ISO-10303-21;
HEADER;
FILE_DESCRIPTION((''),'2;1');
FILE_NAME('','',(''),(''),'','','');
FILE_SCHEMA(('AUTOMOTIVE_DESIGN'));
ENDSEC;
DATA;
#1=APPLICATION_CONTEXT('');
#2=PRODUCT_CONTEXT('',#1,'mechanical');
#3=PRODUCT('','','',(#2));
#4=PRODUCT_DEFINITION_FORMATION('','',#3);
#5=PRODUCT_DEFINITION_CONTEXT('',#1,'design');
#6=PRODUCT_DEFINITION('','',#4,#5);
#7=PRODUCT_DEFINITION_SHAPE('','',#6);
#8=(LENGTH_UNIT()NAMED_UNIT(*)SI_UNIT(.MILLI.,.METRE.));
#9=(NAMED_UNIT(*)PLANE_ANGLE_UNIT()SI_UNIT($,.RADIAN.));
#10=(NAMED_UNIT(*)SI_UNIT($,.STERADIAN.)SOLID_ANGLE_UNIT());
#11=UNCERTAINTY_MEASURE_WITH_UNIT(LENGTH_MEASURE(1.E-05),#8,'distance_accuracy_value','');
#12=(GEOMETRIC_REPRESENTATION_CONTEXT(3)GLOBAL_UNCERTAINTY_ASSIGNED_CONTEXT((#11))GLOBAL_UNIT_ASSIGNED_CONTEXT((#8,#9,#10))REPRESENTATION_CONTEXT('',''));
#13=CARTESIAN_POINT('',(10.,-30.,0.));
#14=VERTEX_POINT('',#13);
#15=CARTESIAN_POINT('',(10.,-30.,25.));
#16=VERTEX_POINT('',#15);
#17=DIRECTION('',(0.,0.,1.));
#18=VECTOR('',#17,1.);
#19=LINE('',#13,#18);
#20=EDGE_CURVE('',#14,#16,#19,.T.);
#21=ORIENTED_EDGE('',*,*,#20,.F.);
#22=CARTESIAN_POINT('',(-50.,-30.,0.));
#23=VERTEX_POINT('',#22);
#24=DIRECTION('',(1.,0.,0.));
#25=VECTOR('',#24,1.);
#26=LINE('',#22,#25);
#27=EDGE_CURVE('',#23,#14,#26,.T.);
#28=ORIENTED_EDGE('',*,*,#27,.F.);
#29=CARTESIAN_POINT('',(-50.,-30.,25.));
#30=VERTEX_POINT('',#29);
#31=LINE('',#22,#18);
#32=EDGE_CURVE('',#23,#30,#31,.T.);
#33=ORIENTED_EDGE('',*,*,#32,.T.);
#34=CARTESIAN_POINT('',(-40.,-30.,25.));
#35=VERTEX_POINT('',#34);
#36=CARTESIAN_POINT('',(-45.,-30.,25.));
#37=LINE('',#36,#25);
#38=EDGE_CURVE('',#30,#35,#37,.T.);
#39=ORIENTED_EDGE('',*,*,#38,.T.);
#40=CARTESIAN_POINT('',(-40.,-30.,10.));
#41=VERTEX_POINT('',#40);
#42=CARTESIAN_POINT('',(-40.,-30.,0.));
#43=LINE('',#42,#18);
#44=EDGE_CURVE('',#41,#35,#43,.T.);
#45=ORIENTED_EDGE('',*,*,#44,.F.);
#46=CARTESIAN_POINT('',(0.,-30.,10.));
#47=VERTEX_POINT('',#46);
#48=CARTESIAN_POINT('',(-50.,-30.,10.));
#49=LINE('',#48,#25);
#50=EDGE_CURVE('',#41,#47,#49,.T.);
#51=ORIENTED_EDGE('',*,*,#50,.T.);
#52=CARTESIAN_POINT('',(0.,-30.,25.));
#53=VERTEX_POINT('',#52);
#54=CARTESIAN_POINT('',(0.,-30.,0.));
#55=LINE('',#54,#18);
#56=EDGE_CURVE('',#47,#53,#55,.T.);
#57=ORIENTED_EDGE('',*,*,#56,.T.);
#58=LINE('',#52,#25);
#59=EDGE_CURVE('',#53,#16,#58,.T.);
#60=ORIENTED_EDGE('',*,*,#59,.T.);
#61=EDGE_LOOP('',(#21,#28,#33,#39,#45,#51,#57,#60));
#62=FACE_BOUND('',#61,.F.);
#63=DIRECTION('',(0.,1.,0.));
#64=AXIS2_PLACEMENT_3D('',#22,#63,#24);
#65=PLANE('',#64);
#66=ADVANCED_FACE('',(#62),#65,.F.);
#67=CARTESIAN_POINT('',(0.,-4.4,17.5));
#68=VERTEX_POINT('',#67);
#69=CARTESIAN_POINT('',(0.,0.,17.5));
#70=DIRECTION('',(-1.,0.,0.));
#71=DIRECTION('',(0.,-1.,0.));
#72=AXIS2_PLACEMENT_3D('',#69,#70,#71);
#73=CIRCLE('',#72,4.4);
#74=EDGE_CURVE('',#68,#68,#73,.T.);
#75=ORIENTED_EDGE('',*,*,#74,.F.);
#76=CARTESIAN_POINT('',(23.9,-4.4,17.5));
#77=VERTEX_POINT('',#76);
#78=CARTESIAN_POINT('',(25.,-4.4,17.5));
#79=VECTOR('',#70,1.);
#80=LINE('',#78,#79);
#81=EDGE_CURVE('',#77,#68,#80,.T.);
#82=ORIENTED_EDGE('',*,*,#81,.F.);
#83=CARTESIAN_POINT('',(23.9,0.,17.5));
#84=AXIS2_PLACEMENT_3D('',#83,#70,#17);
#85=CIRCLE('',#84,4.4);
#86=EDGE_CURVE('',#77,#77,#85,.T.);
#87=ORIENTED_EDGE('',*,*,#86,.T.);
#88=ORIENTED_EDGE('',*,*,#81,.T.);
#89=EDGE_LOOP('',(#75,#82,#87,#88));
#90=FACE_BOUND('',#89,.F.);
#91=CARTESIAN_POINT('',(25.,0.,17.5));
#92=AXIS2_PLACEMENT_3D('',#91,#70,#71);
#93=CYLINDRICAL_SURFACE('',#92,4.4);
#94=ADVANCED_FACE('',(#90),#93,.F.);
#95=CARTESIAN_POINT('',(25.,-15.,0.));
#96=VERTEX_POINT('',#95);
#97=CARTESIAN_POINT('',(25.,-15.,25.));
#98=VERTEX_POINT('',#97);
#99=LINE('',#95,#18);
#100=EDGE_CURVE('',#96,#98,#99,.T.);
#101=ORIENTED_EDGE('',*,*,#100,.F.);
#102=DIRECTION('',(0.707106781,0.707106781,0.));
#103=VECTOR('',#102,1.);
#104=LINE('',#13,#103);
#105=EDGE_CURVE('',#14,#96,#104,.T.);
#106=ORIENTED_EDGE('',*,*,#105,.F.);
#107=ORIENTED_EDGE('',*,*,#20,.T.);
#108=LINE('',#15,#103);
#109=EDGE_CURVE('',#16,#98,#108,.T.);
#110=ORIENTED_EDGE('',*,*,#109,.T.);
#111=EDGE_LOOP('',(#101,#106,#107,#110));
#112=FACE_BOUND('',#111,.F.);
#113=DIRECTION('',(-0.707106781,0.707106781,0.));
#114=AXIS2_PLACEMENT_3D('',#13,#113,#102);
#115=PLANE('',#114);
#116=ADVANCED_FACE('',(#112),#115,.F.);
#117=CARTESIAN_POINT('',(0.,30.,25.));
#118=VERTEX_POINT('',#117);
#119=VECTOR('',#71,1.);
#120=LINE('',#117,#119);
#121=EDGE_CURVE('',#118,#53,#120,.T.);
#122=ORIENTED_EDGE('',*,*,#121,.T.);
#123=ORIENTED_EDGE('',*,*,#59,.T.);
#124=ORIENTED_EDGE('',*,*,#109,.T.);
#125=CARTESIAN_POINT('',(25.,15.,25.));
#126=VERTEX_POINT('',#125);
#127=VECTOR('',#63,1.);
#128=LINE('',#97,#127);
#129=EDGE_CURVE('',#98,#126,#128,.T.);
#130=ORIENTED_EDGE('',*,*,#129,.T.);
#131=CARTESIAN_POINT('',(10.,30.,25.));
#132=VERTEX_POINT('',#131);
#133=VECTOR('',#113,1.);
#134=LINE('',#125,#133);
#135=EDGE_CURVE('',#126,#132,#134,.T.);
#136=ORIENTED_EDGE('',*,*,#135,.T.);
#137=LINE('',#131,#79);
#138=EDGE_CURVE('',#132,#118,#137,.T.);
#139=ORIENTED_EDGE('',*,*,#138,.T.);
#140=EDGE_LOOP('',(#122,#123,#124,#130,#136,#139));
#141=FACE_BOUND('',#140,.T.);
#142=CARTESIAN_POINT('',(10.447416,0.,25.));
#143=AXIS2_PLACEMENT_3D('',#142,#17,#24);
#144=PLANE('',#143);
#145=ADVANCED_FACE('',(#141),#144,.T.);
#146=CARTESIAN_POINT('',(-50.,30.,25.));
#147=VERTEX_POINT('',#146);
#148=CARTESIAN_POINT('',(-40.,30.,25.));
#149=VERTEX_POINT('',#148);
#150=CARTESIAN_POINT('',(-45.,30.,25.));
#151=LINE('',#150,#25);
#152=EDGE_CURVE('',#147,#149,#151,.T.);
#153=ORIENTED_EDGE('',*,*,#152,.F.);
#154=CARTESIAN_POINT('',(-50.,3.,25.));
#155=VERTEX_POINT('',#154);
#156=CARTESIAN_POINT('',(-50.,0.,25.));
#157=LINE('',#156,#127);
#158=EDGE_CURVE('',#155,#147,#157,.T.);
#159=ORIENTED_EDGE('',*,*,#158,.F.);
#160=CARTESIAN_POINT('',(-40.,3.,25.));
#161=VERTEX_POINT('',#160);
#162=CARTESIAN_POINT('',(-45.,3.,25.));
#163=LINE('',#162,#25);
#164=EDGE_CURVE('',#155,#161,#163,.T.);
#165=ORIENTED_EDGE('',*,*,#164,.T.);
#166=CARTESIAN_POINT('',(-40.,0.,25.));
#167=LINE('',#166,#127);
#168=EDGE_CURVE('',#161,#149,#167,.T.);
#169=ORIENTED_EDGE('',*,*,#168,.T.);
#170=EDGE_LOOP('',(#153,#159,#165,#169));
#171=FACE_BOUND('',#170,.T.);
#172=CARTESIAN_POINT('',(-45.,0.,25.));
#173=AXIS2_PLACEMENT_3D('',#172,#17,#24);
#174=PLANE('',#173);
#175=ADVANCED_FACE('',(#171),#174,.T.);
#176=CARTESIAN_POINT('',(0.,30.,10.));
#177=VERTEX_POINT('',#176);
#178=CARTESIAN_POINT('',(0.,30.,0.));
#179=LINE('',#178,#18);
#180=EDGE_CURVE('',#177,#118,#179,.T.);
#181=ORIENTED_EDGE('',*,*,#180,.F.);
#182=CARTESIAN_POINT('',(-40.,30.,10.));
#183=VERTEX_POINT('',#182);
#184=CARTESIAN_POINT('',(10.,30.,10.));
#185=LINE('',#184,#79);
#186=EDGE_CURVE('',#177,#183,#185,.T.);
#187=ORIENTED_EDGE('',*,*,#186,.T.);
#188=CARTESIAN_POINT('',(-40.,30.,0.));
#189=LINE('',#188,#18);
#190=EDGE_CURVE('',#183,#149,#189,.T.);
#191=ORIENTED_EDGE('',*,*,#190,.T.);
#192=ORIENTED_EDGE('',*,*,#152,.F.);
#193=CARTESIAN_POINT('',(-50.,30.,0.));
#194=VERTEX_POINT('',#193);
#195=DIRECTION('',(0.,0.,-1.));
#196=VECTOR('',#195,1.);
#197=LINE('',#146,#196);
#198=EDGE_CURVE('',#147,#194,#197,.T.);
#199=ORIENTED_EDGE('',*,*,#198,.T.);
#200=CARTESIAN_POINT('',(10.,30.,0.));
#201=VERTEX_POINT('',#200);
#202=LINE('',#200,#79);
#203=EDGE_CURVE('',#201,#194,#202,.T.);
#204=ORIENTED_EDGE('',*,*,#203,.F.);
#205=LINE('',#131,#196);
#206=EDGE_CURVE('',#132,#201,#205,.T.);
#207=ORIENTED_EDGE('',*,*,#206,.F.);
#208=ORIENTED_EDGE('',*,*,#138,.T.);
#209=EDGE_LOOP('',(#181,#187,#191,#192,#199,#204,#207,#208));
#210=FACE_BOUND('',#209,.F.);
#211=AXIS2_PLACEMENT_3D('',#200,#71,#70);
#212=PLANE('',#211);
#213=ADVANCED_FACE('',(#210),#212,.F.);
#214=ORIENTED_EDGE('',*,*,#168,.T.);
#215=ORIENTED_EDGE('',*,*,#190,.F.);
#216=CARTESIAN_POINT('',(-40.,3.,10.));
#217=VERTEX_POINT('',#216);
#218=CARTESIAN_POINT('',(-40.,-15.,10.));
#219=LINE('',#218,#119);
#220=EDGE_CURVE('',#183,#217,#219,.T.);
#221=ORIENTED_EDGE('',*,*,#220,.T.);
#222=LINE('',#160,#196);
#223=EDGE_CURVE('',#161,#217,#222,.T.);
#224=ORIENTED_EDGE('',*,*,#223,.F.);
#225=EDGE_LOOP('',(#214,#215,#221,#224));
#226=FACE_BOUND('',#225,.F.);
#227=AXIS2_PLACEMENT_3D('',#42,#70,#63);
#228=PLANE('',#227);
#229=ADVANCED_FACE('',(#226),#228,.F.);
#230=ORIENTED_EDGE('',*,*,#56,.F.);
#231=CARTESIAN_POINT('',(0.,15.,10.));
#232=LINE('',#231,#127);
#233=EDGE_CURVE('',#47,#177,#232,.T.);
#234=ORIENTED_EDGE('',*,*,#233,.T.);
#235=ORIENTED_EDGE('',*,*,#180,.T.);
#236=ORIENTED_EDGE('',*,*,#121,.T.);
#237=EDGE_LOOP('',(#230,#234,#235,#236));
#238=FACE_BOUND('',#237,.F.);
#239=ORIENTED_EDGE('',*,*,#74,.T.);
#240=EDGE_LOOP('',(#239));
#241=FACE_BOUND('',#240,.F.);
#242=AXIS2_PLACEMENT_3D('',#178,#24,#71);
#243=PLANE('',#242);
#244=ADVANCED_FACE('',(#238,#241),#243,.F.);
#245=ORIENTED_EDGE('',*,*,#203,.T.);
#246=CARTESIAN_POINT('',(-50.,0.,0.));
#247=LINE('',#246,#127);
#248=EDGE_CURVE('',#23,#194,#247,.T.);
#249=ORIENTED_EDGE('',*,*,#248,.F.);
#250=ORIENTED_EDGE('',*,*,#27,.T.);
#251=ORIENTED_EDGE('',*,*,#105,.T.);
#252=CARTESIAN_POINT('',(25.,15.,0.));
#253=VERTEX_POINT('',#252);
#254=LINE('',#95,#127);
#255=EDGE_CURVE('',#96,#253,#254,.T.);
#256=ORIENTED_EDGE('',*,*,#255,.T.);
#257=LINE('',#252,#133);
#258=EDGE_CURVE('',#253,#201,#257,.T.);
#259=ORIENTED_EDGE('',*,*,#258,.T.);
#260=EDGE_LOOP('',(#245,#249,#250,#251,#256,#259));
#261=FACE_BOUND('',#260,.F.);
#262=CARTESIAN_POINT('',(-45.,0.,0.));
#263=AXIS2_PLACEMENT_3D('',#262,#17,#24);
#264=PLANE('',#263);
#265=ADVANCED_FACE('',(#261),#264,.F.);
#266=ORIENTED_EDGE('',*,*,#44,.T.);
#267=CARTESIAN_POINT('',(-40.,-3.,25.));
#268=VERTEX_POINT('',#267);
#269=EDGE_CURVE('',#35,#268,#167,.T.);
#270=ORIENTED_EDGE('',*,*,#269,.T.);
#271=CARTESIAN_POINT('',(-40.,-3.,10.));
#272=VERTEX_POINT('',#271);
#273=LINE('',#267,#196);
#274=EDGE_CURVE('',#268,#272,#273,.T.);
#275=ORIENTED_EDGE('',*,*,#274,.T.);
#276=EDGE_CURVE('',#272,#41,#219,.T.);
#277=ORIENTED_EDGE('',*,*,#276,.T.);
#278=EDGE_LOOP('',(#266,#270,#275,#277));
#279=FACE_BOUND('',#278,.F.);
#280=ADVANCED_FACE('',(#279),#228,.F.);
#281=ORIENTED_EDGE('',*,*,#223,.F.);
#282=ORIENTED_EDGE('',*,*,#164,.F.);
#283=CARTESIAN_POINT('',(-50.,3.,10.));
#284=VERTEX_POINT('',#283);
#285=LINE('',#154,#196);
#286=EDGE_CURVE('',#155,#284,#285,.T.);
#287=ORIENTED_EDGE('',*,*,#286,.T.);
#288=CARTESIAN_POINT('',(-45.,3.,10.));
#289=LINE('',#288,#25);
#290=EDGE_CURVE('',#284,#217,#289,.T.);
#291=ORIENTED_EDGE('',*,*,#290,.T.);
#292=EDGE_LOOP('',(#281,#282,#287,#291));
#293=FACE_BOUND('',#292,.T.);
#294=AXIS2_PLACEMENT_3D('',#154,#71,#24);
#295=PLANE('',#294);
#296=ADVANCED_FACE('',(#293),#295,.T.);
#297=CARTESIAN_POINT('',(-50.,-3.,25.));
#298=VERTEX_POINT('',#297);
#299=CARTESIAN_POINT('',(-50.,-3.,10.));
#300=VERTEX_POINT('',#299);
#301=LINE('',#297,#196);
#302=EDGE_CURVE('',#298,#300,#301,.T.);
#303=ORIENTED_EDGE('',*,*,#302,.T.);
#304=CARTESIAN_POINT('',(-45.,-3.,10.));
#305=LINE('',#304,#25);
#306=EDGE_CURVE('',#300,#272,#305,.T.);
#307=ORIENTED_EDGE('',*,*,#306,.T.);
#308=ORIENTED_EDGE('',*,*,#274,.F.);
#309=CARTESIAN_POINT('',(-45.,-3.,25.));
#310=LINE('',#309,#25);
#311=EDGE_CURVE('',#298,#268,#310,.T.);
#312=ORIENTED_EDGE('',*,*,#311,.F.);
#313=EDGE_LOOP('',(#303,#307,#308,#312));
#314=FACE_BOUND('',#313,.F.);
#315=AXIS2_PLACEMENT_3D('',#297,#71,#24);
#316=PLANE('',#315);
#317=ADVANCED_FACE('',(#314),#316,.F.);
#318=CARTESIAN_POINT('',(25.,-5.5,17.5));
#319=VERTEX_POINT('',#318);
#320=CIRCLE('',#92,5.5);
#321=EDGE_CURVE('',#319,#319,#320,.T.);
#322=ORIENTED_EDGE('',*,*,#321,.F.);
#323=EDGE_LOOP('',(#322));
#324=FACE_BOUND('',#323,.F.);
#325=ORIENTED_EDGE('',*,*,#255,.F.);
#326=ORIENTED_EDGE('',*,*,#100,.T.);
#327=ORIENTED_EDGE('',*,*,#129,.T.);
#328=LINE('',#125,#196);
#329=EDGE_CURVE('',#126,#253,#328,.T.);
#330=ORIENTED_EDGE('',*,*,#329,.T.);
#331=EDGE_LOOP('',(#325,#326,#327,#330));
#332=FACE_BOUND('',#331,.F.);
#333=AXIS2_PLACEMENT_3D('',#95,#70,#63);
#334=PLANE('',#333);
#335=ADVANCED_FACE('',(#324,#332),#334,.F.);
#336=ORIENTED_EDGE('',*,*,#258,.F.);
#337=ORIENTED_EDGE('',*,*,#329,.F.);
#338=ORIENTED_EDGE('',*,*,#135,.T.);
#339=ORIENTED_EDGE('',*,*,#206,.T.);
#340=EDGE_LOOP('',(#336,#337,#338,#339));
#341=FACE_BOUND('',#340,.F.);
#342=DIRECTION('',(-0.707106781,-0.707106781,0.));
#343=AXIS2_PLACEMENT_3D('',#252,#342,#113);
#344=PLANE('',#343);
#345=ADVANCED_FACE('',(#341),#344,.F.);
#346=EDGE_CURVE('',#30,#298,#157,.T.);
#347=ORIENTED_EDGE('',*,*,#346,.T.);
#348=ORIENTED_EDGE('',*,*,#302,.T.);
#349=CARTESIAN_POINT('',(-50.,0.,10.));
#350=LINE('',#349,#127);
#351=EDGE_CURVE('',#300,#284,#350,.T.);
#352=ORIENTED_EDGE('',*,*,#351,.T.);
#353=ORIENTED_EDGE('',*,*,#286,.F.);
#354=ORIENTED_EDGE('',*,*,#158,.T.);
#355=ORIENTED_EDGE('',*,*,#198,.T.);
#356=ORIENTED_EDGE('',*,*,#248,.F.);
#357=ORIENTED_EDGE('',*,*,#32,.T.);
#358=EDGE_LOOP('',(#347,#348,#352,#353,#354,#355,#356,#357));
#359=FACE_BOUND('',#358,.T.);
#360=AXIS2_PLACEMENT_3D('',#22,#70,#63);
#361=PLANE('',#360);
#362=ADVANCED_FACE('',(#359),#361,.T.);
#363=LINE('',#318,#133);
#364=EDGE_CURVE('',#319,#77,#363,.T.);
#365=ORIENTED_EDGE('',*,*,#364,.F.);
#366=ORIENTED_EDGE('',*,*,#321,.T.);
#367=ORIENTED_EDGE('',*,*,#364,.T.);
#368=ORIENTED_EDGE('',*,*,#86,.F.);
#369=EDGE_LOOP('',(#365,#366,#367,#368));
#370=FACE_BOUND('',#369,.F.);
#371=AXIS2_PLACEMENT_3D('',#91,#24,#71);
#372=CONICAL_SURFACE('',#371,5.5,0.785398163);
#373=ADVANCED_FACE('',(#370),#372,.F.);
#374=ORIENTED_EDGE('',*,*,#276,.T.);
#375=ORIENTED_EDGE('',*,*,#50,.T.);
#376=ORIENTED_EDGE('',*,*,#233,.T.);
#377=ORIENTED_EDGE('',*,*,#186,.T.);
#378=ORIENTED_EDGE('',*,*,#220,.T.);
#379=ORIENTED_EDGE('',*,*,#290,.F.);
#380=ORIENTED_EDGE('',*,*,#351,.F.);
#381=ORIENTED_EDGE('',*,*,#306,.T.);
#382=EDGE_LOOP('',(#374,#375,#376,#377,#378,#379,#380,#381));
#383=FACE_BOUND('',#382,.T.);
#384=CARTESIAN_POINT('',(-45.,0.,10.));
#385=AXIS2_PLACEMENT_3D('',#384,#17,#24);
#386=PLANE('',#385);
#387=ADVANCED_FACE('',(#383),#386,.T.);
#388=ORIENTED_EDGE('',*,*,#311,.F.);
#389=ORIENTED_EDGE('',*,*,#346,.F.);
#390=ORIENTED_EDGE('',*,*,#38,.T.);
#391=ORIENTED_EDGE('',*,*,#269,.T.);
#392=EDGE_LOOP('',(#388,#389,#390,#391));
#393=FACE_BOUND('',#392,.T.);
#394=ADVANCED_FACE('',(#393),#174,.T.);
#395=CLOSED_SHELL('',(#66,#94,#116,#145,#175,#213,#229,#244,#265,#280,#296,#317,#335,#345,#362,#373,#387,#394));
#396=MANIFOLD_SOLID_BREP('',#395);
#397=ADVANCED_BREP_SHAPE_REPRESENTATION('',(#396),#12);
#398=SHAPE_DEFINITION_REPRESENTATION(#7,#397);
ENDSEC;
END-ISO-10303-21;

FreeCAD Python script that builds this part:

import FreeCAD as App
import Part
import Sketcher

V = App.Vector
Q = App.Units.Quantity


def add_polygon(sketch, points):
    """Adds a closed chain of lines whose ends are joined by coincident constraints."""
    first, n = sketch.GeometryCount, len(points)
    for a, b in zip(points, points[1:] + points[:1]):
        sketch.addGeometry(Part.LineSegment(App.Vector(*a, 0), App.Vector(*b, 0)), False)
    for i in range(n):
        sketch.addConstraint(Sketcher.Constraint("Coincident", first + i, 2, first + (i + 1) % n, 1))

doc = App.newDocument("Part")
body = doc.addObject("PartDesign::Body", "Body")

sketch1 = body.newObject("Sketcher::SketchObject", "Sketch")
sketch1.AttachmentSupport = (doc.getObject("XY_Plane"), [""])
sketch1.MapMode = "FlatFace"
add_polygon(sketch1, [(-50, 30), (-50, -30), (10, -30), (25, -15), (25, 15), (10, 30)])
sketch1.addConstraint(Sketcher.Constraint("Vertical", 0))
sketch1.addConstraint(Sketcher.Constraint("Horizontal", 1))
sketch1.addConstraint(Sketcher.Constraint("Vertical", 3))
sketch1.addConstraint(Sketcher.Constraint("Horizontal", 5))
sketch1.addConstraint(Sketcher.Constraint("Symmetric", 1, 2, 4, 2, -1))
sketch1.addConstraint(Sketcher.Constraint("Perpendicular", 2, 4))
sketch1.addConstraint(Sketcher.Constraint("Equal", 5, 0))
sketch1.addConstraint(Sketcher.Constraint("Equal", 2, 4))
sketch1.addConstraint(Sketcher.Constraint("DistanceX", 1, 1, 1, 2, Q("60 mm")))
sketch1.addConstraint(Sketcher.Constraint("DistanceY", 3, 1, 3, 2, Q("30 mm")))
sketch1.addConstraint(Sketcher.Constraint("DistanceX", 0, 2, -1, 1, Q("50 mm")))
pad1 = body.newObject("PartDesign::Pad", "Pad")
pad1.Profile = sketch1
pad1.Length = 10

sketch2 = body.newObject("Sketcher::SketchObject", "Sketch001")
sketch2.AttachmentSupport = (doc.getObject("XY_Plane"), [""])
sketch2.MapMode = "FlatFace"
add_polygon(sketch2, [(-50, 30), (-50, -30), (-40, -30), (-40, 30)])
add_polygon(sketch2, [(10, 30), (0, 30), (0, -30), (10, -30), (25, -15), (25, 15)])
sketch2.addConstraint(Sketcher.Constraint("Vertical", 0))
sketch2.addConstraint(Sketcher.Constraint("Horizontal", 1))
sketch2.addConstraint(Sketcher.Constraint("Vertical", 2))
sketch2.addConstraint(Sketcher.Constraint("Horizontal", 3))
sketch2.addConstraint(Sketcher.Constraint("Horizontal", 4))
sketch2.addConstraint(Sketcher.Constraint("Vertical", 5))
sketch2.addConstraint(Sketcher.Constraint("Horizontal", 6))
sketch2.addConstraint(Sketcher.Constraint("Vertical", 8))
sketch2.addConstraint(Sketcher.Constraint("Symmetric", 4, 2, 5, 2, -1, 1))
sketch2.addConstraint(Sketcher.Constraint("Perpendicular", 7, 9))
sketch2.addConstraint(Sketcher.Constraint("Horizontal", 3, 2, 4, 2))
sketch2.addConstraint(Sketcher.Constraint("Horizontal", 1, 2, 5, 2))
sketch2.addConstraint(Sketcher.Constraint("Vertical", 6, 2, 9, 2))
sketch2.addConstraint(Sketcher.Constraint("Equal", 3, 4))
sketch2.addConstraint(Sketcher.Constraint("Equal", 7, 9))
sketch2.addConstraint(Sketcher.Constraint("DistanceX", 1, 1, 1, 2, Q("10 mm")))
sketch2.addConstraint(Sketcher.Constraint("DistanceY", 0, 2, 0, 1, Q("60 mm")))
sketch2.addConstraint(Sketcher.Constraint("DistanceY", 8, 1, 8, 2, Q("30 mm")))
sketch2.addConstraint(Sketcher.Constraint("DistanceX", 0, 2, -1, 1, Q("50 mm")))
pad2 = body.newObject("PartDesign::Pad", "Pad001")
pad2.Profile = sketch2
pad2.Length = 25

sketch3 = body.newObject("Sketcher::SketchObject", "Sketch002")
sketch3.AttachmentSupport = (doc.getObject("XY_Plane"), [""])
sketch3.MapMode = "FlatFace"
sketch3.AttachmentOffset = App.Placement(V(0, 0, 25), App.Rotation())
add_polygon(sketch3, [(-50, 3), (-50, -3), (-40, -3), (-40, 3)])
sketch3.addConstraint(Sketcher.Constraint("Vertical", 0))
sketch3.addConstraint(Sketcher.Constraint("Horizontal", 1))
sketch3.addConstraint(Sketcher.Constraint("Vertical", 2))
sketch3.addConstraint(Sketcher.Constraint("Horizontal", 3))
sketch3.addConstraint(Sketcher.Constraint("DistanceX", 1, 1, 1, 2, Q("10 mm")))
sketch3.addConstraint(Sketcher.Constraint("DistanceY", 0, 2, 0, 1, Q("6 mm")))
sketch3.addConstraint(Sketcher.Constraint("DistanceX", 0, 2, -1, 1, Q("50 mm")))
sketch3.addConstraint(Sketcher.Constraint("DistanceY", 0, 2, -1, 1, Q("3 mm")))
pocket1 = body.newObject("PartDesign::Pocket", "Pocket")
pocket1.Profile = sketch3
pocket1.Length = 15

sketch4 = body.newObject("Sketcher::SketchObject", "Sketch003")
sketch4.AttachmentSupport = (doc.getObject("YZ_Plane"), [""])
sketch4.MapMode = "FlatFace"
sketch4.AttachmentOffset = App.Placement(V(0, 0, 25), App.Rotation())
sketch4.addGeometry(Part.Circle(V(0, 17.5, 0), V(0, 0, 1), 4.4), False)
sketch4.addConstraint(Sketcher.Constraint("PointOnObject", 0, 3, -2))
sketch4.addConstraint(Sketcher.Constraint("Diameter", 0, Q("8.8 mm")))
sketch4.addConstraint(Sketcher.Constraint("DistanceY", -1, 1, 0, 3, Q("17.5 mm")))
doc.recompute()
hole = body.newObject("PartDesign::Hole", "Hole")
hole.Profile = sketch4
hole.ThreadType = "None"
hole.Diameter = 8.8
hole.DepthType = "Dimension"
hole.Depth = 25
hole.DrillPoint = "Flat"
hole.HoleCutType = "Countersink"
hole.HoleCutDiameter = 11
hole.HoleCutCountersinkAngle = 90

doc.recompute()
